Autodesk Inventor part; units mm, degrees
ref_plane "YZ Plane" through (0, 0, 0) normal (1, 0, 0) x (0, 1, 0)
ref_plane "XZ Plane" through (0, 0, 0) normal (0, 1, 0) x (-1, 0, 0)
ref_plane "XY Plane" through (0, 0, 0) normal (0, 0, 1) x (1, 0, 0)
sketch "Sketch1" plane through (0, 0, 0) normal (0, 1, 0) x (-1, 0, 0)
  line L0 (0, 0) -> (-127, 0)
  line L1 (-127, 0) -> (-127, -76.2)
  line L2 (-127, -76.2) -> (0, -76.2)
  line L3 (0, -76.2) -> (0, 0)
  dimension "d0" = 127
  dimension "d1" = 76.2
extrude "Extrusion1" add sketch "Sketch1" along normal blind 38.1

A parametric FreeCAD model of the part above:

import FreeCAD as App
import Part
import Sketcher

V = App.Vector
Q = App.Units.Quantity

doc = App.newDocument("Part")
body = doc.addObject("PartDesign::Body", "Body")

# Sketch on XZ plane
sketch1 = doc.addObject("Sketcher::SketchObject", "Sketch")
body.addObject(sketch1)
sketch1.AttachmentSupport = (doc.XZ_Plane, [""])
sketch1.MapMode = "FlatFace"
sketch1.addGeometry([
    Part.LineSegment(V(0, -76.2, 0), V(0, 0, 0)),
    Part.LineSegment(V(0, 0, 0), V(127, 0, 0)),
    Part.LineSegment(V(127, 0, 0), V(127, -76.2, 0)),
    Part.LineSegment(V(127, -76.2, 0), V(0, -76.2, 0)),
], False)
sketch1.addConstraint([
    Sketcher.Constraint("Coincident", 0, 2, 1, 1),
    Sketcher.Constraint("Coincident", 1, 2, 2, 1),
    Sketcher.Constraint("Coincident", 2, 2, 3, 1),
    Sketcher.Constraint("Coincident", 3, 2, 0, 1),
    Sketcher.Constraint("Vertical", 0),
    Sketcher.Constraint("Horizontal", 1),
    Sketcher.Constraint("Vertical", 2),
    Sketcher.Constraint("Horizontal", 3),
    Sketcher.Constraint("Coincident", 0, 2, -1, 1),
    Sketcher.Constraint("DistanceX", 1, 1, 1, 2, Q("5 in")),
    Sketcher.Constraint("DistanceY", 0, 1, 0, 2, Q("3 in")),
])
pad1 = doc.addObject("PartDesign::Pad", "Pad")
body.addObject(pad1)
pad1.Profile = sketch1
pad1.Length = Q("1.5 in")
pad1.Reversed = True

doc.recompute()
